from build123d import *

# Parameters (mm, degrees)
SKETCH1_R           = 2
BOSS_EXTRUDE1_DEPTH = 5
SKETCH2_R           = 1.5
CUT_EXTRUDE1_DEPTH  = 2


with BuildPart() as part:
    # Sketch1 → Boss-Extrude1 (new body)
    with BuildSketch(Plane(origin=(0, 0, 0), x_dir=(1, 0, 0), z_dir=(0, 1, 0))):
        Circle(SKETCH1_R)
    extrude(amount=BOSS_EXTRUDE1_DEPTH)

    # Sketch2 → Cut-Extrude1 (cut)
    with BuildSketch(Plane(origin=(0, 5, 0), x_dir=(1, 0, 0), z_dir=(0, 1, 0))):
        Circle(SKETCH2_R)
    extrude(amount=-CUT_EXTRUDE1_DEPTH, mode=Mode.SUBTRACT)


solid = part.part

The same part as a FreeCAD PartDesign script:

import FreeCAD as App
import Part
import Sketcher

V = App.Vector

doc = App.newDocument("Part")
body = doc.addObject("PartDesign::Body", "Body")

# Sketch on XZ plane
sketch1 = body.newObject("Sketcher::SketchObject", "Sketch")
sketch1.AttachmentSupport = (doc.getObject("XZ_Plane"), [""])
sketch1.MapMode = "FlatFace"
sketch1.addGeometry(Part.Circle(V(0, 0, 0), V(0, 0, 1), 2), False)
sketch1.addConstraint(Sketcher.Constraint("Coincident", 0, 3, -1, 1))
sketch1.addConstraint(Sketcher.Constraint("Diameter", 0, 4.0))
pad1 = body.newObject("PartDesign::Pad", "Pad")
pad1.Profile = sketch1
pad1.Length = 5
pad1.Reversed = True

# Sketch on XZ plane
sketch2 = body.newObject("Sketcher::SketchObject", "Sketch001")
sketch2.AttachmentSupport = (doc.getObject("XZ_Plane"), [""])
sketch2.MapMode = "FlatFace"
sketch2.AttachmentOffset = App.Placement(V(0, 0, -5), App.Rotation())
sketch2.addGeometry(Part.Circle(V(0, 0, 0), V(0, 0, 1), 1.5), False)
sketch2.addConstraint(Sketcher.Constraint("Coincident", 0, 3, -1, 1))
sketch2.addConstraint(Sketcher.Constraint("Diameter", 0, 3.0))
pocket1 = body.newObject("PartDesign::Pocket", "Pocket")
pocket1.Profile = sketch2
pocket1.Length = 2
pocket1.Reversed = True

doc.recompute()
